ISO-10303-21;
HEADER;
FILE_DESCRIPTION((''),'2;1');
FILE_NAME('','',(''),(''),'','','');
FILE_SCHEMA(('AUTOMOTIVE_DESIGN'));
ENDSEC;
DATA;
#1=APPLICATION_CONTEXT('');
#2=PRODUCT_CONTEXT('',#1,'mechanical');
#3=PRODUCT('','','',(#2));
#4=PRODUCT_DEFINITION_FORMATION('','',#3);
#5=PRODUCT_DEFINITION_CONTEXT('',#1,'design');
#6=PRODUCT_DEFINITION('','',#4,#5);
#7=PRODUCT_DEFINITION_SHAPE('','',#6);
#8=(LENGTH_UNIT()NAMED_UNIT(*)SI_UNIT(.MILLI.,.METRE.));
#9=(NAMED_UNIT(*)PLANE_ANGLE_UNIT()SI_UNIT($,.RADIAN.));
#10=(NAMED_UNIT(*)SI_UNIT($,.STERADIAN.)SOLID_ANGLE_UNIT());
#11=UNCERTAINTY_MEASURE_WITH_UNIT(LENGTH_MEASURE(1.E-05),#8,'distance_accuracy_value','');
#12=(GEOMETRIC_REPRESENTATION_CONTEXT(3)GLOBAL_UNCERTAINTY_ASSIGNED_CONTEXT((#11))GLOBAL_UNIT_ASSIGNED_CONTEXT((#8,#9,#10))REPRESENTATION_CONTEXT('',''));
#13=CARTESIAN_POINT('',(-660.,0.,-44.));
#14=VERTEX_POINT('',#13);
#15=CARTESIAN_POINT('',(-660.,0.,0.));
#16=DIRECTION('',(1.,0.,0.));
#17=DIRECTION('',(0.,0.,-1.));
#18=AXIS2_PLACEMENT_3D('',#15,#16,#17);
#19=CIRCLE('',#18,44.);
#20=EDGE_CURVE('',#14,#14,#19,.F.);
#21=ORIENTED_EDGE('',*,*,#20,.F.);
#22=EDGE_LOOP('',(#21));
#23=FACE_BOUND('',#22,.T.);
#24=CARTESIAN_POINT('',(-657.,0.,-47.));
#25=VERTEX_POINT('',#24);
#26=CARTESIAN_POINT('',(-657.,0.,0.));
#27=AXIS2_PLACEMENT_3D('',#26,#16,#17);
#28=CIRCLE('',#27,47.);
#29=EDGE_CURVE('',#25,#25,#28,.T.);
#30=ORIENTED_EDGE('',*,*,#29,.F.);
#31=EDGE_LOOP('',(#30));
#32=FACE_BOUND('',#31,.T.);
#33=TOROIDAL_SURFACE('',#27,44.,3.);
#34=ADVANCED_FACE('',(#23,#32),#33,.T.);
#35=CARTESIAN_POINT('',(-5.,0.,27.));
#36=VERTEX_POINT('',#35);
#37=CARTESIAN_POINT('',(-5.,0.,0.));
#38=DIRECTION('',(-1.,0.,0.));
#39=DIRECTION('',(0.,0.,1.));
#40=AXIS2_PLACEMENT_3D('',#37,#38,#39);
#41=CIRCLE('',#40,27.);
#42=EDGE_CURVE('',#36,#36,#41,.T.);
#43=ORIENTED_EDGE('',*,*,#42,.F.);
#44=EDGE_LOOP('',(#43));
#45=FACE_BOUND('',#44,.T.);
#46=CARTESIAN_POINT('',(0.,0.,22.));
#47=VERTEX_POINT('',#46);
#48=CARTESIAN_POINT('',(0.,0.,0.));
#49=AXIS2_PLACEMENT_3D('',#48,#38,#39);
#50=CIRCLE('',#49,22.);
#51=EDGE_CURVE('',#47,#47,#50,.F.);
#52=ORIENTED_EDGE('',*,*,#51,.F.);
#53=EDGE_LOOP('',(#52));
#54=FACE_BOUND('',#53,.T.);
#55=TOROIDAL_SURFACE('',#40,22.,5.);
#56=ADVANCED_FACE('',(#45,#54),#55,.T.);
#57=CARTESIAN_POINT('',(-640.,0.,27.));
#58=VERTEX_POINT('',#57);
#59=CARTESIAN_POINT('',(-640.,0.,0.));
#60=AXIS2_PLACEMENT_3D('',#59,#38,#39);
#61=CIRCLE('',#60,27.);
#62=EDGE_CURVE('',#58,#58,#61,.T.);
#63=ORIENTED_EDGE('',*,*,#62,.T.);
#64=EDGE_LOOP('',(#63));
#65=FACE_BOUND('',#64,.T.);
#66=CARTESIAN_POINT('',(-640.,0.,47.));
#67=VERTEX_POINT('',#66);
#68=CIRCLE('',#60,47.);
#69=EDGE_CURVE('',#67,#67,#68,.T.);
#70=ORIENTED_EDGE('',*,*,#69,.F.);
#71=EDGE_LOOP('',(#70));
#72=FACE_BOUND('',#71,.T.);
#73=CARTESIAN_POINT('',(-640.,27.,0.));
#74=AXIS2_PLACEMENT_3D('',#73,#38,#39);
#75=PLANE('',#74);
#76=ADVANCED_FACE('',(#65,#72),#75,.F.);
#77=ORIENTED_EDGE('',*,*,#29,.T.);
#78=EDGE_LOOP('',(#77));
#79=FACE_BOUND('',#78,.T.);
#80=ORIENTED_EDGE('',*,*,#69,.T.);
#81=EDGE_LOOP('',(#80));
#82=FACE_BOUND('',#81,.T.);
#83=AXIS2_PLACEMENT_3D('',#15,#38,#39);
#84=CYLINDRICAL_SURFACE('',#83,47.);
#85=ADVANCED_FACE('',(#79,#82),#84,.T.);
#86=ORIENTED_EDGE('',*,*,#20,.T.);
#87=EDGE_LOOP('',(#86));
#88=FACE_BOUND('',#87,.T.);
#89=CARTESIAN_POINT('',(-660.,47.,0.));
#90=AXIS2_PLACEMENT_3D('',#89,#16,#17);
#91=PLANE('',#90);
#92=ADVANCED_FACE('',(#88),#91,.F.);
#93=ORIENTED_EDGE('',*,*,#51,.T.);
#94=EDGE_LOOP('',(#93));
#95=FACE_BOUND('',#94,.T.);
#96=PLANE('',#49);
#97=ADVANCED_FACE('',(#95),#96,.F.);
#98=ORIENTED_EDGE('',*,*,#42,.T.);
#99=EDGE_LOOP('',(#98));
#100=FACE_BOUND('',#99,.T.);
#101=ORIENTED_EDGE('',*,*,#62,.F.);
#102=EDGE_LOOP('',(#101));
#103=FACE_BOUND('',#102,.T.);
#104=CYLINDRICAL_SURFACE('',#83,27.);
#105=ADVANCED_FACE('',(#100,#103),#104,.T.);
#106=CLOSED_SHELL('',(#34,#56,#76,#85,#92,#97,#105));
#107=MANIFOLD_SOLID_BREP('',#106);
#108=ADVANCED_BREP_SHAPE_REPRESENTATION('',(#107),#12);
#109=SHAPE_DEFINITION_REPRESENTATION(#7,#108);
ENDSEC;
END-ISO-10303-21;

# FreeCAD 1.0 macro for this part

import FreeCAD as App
import Part
import Sketcher


def edges_at(feature, points):
    """Names of the edges that pass closest to the given points."""
    edges = feature.Shape.Edges
    near = lambda p: min(range(len(edges)), key=lambda i: edges[i].distToShape(Part.Vertex(*p))[0])
    return sorted({f"Edge{near(p) + 1}" for p in points})


def add_polygon(sketch, points):
    """Adds a closed chain of lines whose ends are joined by coincident constraints."""
    first, n = sketch.GeometryCount, len(points)
    for a, b in zip(points, points[1:] + points[:1]):
        sketch.addGeometry(Part.LineSegment(App.Vector(*a, 0), App.Vector(*b, 0)), False)
    for i in range(n):
        sketch.addConstraint(Sketcher.Constraint("Coincident", first + i, 2, first + (i + 1) % n, 1))

doc = App.newDocument("Part")
body = doc.addObject("PartDesign::Body", "Body")

sketch1 = body.newObject("Sketcher::SketchObject", "Sketch")
sketch1.AttachmentSupport = (doc.getObject("XY_Plane"), [""])
sketch1.MapMode = "FlatFace"
add_polygon(sketch1, [(0, 0), (0, 27), (-640, 27), (-640, 47), (-660, 47), (-660, 0)])
sketch1.addConstraint(Sketcher.Constraint("Vertical", 0))
sketch1.addConstraint(Sketcher.Constraint("Horizontal", 1))
sketch1.addConstraint(Sketcher.Constraint("Vertical", 2))
sketch1.addConstraint(Sketcher.Constraint("Horizontal", 3))
sketch1.addConstraint(Sketcher.Constraint("Vertical", 4))
sketch1.addConstraint(Sketcher.Constraint("Horizontal", 5))
sketch1.addConstraint(Sketcher.Constraint("Coincident", 5, 2, -1, 1))
sketch1.addConstraint(Sketcher.Constraint("Equal", 3, 2))
sketch1.addConstraint(Sketcher.Constraint("DistanceX", 1, 2, 1, 1, 640.0))
sketch1.addConstraint(Sketcher.Constraint("DistanceX", 3, 2, 3, 1, 20.0))
sketch1.addConstraint(Sketcher.Constraint("DistanceY", 0, 1, 0, 2, 27.0))
revolution = body.newObject("PartDesign::Revolution", "Revolution")
revolution.Profile = sketch1
revolution.ReferenceAxis = (sketch1, ["H_Axis"])
revolution.Angle = 360
doc.recompute()

fillet = body.newObject("PartDesign::Fillet", "Fillet")
fillet.Base = (revolution, edges_at(revolution, [(-660, 0, -47)]))
fillet.Radius = 3
doc.recompute()

fillet2 = body.newObject("PartDesign::Fillet", "Fillet001")
fillet2.Base = (fillet, edges_at(fillet, [(0, 0, -27)]))
fillet2.Radius = 5

doc.recompute()
